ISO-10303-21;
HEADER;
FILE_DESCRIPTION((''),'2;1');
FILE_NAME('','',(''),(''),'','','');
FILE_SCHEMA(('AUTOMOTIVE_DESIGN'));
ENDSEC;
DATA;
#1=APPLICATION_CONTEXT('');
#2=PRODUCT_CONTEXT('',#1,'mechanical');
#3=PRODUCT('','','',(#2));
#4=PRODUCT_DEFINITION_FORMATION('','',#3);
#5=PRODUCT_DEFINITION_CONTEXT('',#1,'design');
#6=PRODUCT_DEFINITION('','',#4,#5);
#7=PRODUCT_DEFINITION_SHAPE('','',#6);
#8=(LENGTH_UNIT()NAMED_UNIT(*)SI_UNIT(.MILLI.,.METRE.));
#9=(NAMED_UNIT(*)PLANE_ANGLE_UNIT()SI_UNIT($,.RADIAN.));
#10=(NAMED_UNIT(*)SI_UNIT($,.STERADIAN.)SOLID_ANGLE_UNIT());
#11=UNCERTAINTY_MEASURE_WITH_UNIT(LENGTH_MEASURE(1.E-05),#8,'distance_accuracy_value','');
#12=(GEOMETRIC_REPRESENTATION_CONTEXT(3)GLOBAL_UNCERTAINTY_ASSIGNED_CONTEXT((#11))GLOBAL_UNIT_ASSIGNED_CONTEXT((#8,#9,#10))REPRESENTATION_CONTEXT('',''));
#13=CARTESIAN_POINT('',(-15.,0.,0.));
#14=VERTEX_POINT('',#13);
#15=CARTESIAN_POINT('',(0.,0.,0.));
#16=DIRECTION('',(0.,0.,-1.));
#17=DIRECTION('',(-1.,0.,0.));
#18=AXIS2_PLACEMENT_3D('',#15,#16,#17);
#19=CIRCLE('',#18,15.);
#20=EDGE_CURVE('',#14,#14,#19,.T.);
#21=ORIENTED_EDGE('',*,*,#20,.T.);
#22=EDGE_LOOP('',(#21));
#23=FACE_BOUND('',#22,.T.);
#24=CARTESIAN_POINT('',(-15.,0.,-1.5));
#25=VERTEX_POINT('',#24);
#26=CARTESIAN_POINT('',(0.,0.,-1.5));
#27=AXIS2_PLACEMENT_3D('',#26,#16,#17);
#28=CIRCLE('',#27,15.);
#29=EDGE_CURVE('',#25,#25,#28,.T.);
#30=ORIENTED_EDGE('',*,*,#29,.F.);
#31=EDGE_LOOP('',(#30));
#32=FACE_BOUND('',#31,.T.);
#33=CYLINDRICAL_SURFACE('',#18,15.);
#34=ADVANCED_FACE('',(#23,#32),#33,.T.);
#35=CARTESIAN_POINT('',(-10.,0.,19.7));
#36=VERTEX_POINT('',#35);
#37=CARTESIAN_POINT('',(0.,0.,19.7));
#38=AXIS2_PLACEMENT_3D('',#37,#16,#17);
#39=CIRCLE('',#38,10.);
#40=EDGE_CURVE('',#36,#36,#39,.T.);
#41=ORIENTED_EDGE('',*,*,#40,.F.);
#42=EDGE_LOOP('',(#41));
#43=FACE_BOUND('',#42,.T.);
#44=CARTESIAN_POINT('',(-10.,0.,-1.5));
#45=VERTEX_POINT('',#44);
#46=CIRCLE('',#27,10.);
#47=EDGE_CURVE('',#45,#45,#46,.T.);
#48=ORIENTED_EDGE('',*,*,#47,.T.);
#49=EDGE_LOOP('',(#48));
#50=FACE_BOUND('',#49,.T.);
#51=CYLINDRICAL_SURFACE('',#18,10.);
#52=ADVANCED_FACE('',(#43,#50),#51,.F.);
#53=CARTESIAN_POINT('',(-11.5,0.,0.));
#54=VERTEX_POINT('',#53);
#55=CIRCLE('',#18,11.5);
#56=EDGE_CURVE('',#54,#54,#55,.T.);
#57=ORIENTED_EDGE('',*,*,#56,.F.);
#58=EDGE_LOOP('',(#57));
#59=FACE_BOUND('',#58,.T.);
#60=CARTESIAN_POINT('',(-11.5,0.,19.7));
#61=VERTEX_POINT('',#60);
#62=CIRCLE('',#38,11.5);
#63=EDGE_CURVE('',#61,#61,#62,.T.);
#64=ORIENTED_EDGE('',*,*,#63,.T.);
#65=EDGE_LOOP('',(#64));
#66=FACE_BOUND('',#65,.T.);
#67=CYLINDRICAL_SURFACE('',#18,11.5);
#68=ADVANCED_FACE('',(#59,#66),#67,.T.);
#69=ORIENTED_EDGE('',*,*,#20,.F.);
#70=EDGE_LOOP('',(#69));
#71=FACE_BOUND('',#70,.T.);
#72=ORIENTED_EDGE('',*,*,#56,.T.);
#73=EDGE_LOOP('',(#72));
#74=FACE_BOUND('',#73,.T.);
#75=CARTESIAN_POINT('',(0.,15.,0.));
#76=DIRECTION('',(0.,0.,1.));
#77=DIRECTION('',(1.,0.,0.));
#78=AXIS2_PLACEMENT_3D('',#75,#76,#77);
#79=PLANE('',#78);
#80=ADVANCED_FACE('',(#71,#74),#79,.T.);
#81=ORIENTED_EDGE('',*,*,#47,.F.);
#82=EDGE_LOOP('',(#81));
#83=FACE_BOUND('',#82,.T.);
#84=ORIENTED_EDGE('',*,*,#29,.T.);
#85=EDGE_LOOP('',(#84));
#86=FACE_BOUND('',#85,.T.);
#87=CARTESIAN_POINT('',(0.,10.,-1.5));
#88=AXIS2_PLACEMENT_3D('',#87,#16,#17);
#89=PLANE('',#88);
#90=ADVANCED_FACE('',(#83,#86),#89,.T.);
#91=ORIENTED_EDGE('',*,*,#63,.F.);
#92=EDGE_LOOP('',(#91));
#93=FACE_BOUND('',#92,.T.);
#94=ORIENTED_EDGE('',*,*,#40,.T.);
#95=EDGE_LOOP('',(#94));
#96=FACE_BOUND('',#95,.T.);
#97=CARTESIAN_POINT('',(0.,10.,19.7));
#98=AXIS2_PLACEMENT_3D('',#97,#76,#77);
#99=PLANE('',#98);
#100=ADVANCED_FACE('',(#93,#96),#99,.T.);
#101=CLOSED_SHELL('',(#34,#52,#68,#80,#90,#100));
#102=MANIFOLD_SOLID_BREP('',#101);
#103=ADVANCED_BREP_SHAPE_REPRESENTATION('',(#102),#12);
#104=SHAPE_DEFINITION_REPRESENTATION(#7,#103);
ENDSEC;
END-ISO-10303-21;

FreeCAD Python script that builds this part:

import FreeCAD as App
import Part
import Sketcher
Q = App.Units.Quantity


def add_polygon(sketch, points):
    """Adds a closed chain of lines whose ends are joined by coincident constraints."""
    first, n = sketch.GeometryCount, len(points)
    for a, b in zip(points, points[1:] + points[:1]):
        sketch.addGeometry(Part.LineSegment(App.Vector(*a, 0), App.Vector(*b, 0)), False)
    for i in range(n):
        sketch.addConstraint(Sketcher.Constraint("Coincident", first + i, 2, first + (i + 1) % n, 1))

doc = App.newDocument("Part")
body = doc.addObject("PartDesign::Body", "Body")

# Sketch on YZ plane
sketch1 = doc.addObject("Sketcher::SketchObject", "Sketch")
body.addObject(sketch1)
sketch1.AttachmentSupport = (doc.YZ_Plane, [""])
sketch1.MapMode = "FlatFace"
add_polygon(sketch1, [(10, 19.7), (10, -1.5), (15, -1.5), (15, 0), (11.5, 0), (11.5, 19.7)])  # lines 0-5
sketch1.addConstraint(Sketcher.Constraint("Vertical", 0))
sketch1.addConstraint(Sketcher.Constraint("Horizontal", 1))
sketch1.addConstraint(Sketcher.Constraint("Vertical", 2))
sketch1.addConstraint(Sketcher.Constraint("Horizontal", 3))
sketch1.addConstraint(Sketcher.Constraint("Vertical", 4))
sketch1.addConstraint(Sketcher.Constraint("Horizontal", 5))
sketch1.addConstraint(Sketcher.Constraint("PointOnObject", 2, 2, -1))
sketch1.addConstraint(Sketcher.Constraint("Equal", 5, 2))
sketch1.addConstraint(Sketcher.Constraint("DistanceX", 1, 1, 1, 2, Q("5 mm")))
sketch1.addConstraint(Sketcher.Constraint("DistanceX", 3, 2, 3, 1, Q("3.5 mm")))
sketch1.addConstraint(Sketcher.Constraint("DistanceY", 0, 2, 0, 1, Q("21.2 mm")))
sketch1.addConstraint(Sketcher.Constraint("DistanceX", -1, 1, 0, 2, Q("10 mm")))
revolution = doc.addObject("PartDesign::Revolution", "Revolution")
body.addObject(revolution)
revolution.Profile = sketch1
revolution.ReferenceAxis = (sketch1, ["V_Axis"])
revolution.Angle = 360

doc.recompute()
